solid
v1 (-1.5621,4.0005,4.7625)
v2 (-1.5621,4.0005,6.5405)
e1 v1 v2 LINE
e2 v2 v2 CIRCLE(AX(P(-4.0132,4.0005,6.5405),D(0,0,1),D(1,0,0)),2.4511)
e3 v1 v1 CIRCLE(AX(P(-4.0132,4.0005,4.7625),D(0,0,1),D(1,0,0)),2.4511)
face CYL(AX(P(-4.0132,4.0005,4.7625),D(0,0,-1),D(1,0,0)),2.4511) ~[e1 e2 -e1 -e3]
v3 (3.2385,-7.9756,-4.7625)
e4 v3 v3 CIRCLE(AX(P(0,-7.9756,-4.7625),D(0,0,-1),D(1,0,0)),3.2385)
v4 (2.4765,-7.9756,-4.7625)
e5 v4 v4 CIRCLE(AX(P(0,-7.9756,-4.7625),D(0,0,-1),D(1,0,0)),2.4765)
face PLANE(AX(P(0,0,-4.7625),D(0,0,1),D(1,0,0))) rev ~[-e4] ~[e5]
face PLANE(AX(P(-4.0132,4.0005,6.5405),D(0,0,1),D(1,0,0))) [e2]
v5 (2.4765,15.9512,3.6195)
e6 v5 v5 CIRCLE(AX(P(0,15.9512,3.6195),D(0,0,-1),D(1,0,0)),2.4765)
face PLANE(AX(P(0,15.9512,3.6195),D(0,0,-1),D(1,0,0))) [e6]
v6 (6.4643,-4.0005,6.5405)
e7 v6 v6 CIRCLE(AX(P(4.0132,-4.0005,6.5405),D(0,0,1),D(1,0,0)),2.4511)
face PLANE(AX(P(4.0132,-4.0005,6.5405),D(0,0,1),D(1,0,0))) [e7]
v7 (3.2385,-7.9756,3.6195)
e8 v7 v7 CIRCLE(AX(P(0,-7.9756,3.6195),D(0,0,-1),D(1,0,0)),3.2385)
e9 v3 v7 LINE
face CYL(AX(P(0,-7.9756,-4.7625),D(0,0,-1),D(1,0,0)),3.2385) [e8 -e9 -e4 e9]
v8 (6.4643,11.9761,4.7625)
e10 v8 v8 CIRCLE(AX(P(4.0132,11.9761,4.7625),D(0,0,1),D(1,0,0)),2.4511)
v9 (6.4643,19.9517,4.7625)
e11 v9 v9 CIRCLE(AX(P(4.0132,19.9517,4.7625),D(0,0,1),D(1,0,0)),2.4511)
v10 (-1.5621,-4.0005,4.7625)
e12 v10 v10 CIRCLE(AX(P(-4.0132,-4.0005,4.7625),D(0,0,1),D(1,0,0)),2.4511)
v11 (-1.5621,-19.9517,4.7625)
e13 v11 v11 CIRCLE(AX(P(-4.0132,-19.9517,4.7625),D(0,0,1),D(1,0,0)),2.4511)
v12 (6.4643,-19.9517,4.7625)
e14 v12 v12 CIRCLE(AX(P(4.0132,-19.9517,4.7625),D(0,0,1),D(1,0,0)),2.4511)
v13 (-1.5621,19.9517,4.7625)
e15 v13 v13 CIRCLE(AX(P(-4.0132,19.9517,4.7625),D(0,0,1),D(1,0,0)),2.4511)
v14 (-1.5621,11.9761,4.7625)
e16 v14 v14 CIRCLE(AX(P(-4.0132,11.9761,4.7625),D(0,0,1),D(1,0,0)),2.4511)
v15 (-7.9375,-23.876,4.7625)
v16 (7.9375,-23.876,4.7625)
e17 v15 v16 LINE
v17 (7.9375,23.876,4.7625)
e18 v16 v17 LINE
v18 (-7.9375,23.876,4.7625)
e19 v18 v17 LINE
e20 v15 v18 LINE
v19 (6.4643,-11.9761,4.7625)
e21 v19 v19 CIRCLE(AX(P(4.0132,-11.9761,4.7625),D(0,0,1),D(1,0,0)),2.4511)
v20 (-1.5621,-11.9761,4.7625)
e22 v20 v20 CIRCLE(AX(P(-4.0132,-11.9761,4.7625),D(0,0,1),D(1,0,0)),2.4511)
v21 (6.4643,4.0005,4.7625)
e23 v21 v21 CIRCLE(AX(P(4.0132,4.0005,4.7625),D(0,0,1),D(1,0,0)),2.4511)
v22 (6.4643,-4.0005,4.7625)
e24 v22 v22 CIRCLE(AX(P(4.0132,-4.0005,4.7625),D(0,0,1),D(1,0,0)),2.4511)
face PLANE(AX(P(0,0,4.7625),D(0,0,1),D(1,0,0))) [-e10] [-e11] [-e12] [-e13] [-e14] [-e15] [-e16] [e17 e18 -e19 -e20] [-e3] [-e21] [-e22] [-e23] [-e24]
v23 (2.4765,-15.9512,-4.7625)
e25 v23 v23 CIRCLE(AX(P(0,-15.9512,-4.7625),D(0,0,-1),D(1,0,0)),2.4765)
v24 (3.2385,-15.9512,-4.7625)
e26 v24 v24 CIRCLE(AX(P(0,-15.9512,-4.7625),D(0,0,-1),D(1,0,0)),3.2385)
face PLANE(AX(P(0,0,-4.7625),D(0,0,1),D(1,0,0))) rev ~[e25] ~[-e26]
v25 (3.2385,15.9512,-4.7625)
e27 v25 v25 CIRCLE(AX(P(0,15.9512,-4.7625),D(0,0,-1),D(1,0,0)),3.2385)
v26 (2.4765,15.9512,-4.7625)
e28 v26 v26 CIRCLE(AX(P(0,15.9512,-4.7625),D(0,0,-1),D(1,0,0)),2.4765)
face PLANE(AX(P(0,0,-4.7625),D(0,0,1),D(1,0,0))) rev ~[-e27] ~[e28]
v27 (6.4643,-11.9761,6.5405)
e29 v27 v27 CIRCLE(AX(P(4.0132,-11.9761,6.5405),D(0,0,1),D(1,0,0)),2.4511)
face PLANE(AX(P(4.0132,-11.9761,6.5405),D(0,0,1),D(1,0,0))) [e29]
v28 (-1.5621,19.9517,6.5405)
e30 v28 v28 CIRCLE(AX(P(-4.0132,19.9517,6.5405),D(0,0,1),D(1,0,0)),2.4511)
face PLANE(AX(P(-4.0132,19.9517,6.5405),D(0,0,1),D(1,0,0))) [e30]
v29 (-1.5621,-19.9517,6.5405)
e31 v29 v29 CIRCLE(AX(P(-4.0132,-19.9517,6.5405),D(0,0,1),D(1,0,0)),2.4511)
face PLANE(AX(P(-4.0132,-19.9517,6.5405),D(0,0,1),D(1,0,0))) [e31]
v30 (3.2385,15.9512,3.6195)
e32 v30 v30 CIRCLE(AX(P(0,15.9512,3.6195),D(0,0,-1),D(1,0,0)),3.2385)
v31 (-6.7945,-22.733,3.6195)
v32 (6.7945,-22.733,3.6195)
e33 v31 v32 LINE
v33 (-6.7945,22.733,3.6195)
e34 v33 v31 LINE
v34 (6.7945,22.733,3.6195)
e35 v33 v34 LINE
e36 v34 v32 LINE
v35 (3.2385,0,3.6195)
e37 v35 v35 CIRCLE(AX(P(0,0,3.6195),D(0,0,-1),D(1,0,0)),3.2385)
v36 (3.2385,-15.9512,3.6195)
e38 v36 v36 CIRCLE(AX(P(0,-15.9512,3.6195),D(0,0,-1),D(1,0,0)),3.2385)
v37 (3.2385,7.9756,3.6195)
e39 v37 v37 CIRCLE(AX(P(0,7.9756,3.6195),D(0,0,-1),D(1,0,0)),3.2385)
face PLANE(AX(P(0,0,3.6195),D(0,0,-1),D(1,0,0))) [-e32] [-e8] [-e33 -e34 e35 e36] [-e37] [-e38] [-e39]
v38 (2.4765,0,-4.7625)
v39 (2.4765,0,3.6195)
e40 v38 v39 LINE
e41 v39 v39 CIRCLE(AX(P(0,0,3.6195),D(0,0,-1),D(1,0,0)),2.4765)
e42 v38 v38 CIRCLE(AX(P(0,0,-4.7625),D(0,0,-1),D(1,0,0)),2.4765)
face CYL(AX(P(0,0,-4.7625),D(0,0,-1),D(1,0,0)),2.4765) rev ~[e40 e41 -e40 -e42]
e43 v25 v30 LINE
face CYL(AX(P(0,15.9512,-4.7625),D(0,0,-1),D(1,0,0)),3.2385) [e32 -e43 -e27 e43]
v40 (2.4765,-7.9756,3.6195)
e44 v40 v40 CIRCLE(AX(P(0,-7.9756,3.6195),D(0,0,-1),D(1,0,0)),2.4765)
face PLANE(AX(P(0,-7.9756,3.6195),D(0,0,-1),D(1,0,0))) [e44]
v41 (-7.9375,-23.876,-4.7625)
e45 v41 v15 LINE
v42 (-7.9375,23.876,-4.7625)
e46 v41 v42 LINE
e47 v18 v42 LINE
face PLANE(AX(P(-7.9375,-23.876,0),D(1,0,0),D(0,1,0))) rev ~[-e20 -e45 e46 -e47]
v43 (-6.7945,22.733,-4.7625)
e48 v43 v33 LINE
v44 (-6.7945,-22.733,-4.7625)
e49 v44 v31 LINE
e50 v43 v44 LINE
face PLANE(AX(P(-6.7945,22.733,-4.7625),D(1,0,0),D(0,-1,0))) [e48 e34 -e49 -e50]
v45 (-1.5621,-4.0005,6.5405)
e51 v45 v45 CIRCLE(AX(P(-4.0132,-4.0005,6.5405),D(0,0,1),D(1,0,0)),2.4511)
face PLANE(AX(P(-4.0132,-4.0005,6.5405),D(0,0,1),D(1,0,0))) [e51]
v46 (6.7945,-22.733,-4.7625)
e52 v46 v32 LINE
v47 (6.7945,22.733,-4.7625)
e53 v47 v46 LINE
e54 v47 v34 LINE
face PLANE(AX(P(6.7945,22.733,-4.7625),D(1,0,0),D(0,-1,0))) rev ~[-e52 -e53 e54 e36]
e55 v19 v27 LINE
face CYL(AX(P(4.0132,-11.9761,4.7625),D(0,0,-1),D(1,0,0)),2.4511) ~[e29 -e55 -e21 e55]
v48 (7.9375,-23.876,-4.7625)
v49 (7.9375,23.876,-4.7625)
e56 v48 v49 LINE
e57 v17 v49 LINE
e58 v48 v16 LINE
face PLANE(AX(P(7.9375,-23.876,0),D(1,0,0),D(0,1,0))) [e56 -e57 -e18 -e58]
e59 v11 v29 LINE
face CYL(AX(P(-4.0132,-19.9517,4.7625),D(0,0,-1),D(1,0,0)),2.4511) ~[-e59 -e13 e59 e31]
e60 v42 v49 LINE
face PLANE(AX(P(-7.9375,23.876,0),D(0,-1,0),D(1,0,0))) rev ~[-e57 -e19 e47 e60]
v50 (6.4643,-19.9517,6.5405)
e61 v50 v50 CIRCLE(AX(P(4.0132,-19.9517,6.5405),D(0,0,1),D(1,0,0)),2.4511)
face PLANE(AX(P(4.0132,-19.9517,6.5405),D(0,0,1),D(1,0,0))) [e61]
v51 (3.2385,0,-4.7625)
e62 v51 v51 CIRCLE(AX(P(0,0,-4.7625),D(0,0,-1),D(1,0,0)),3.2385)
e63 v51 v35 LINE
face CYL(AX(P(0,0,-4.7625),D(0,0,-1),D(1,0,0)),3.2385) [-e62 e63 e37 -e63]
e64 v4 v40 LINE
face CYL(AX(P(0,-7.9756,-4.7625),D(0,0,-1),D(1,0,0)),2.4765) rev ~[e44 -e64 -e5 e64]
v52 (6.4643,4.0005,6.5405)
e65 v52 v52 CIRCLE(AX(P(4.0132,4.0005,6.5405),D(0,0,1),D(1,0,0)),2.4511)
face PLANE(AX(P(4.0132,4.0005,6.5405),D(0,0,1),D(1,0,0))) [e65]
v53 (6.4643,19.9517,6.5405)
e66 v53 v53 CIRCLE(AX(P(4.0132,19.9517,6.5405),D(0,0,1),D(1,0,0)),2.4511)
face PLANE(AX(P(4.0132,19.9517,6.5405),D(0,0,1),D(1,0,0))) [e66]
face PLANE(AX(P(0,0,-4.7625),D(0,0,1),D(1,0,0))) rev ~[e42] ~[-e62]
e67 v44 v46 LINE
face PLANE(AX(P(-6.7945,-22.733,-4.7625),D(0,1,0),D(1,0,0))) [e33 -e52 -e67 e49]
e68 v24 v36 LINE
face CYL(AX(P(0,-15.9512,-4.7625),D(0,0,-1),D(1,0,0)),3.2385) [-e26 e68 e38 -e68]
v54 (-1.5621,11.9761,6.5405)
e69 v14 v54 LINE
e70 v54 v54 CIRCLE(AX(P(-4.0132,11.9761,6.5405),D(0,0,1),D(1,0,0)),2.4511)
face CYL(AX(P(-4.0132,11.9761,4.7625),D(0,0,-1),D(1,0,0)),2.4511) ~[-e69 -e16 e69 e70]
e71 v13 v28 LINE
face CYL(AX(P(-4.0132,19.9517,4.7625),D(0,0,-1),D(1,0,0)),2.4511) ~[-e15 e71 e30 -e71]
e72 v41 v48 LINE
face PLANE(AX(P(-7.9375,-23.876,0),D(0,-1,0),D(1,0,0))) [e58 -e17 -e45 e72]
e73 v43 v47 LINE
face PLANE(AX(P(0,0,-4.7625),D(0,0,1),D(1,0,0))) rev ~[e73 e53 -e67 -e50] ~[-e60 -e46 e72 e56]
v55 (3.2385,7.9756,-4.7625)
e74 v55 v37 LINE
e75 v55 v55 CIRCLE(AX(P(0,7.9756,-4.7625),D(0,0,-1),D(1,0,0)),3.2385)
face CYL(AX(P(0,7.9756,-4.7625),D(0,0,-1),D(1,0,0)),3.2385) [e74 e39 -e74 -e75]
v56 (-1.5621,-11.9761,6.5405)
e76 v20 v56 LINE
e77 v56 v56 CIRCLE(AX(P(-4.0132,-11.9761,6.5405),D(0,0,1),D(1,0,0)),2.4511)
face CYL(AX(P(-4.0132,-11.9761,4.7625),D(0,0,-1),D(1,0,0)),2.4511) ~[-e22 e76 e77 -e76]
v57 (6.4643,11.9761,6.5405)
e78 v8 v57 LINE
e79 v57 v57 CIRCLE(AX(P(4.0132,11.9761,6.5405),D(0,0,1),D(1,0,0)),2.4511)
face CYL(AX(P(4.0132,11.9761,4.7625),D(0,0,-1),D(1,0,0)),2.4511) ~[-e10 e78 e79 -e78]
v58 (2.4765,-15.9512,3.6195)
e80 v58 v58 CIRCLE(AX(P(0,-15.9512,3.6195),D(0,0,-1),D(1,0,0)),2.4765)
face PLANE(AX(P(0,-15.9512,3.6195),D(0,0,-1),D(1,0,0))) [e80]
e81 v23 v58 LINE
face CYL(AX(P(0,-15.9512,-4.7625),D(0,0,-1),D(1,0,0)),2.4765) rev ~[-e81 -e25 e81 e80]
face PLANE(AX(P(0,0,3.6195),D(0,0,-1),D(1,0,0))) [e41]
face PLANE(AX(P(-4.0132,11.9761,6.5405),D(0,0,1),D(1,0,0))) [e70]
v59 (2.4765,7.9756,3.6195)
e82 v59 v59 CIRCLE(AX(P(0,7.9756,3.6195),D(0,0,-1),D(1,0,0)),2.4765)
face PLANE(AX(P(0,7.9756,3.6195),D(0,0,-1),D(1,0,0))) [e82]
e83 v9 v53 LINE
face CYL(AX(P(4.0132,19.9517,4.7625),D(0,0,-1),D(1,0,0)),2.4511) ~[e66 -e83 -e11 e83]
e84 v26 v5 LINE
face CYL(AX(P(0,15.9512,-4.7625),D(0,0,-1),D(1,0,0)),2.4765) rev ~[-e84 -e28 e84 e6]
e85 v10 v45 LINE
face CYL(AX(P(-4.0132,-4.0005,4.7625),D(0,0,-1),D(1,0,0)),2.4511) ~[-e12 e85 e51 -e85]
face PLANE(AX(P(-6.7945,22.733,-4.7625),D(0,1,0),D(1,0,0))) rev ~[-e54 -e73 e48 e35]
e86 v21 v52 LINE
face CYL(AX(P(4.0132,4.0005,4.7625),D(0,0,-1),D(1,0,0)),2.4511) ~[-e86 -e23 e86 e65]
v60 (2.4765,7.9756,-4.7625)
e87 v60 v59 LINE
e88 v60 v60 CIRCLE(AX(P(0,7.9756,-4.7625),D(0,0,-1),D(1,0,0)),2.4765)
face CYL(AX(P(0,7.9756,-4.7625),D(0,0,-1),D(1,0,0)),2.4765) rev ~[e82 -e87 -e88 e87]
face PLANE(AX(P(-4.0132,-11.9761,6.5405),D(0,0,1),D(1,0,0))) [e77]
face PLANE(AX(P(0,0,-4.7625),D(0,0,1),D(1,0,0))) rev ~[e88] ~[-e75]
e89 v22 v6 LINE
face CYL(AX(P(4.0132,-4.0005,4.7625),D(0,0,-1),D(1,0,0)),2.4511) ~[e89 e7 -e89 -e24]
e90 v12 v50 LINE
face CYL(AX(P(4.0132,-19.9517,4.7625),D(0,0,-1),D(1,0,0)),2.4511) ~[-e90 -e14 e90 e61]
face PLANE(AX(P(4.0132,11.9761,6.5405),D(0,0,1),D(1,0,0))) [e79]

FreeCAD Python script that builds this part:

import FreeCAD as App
import Part
import Sketcher
Q = App.Units.Quantity

doc = App.newDocument("Part")
body = doc.addObject("PartDesign::Body", "Body")

# Sketch on XY plane
sketch1 = body.newObject("Sketcher::SketchObject", "Sketch")
sketch1.AttachmentSupport = (doc.getObject("XY_Plane"), [""])
sketch1.MapMode = "FlatFace"
sketch1.addGeometry(Part.LineSegment(App.Vector(-7.9375, 23.876, 0), App.Vector(-7.9375, -23.876, 0)), False)
sketch1.addGeometry(Part.LineSegment(App.Vector(-7.9375, -23.876, 0), App.Vector(7.9375, -23.876, 0)), False)
sketch1.addGeometry(Part.LineSegment(App.Vector(7.9375, -23.876, 0), App.Vector(7.9375, 23.876, 0)), False)
sketch1.addGeometry(Part.LineSegment(App.Vector(7.9375, 23.876, 0), App.Vector(-7.9375, 23.876, 0)), False)
sketch1.addConstraint(Sketcher.Constraint("Coincident", 0, 2, 1, 1))
sketch1.addConstraint(Sketcher.Constraint("Coincident", 1, 2, 2, 1))
sketch1.addConstraint(Sketcher.Constraint("Coincident", 2, 2, 3, 1))
sketch1.addConstraint(Sketcher.Constraint("Coincident", 3, 2, 0, 1))
sketch1.addConstraint(Sketcher.Constraint("Vertical", 0))
sketch1.addConstraint(Sketcher.Constraint("Horizontal", 1))
sketch1.addConstraint(Sketcher.Constraint("Vertical", 2))
sketch1.addConstraint(Sketcher.Constraint("Horizontal", 3))
sketch1.addConstraint(Sketcher.Constraint("Symmetric", 0, 2, 2, 2, -1, 1))
sketch1.addConstraint(Sketcher.Constraint("DistanceY", 0, 2, 0, 1, Q("1.88 in")))
sketch1.addConstraint(Sketcher.Constraint("DistanceX", 1, 1, 1, 2, Q("0.625 in")))
pad1 = body.newObject("PartDesign::Pad", "Pad")
pad1.Profile = sketch1
pad1.Length = Q("0.375 in")
pad1.Midplane = True

# Sketch on XY plane
sketch2 = body.newObject("Sketcher::SketchObject", "Sketch001")
sketch2.AttachmentSupport = (doc.getObject("XY_Plane"), [""])
sketch2.MapMode = "FlatFace"
sketch2.AttachmentOffset = App.Placement(App.Vector(0, 0, 0.1875 * 25.4), App.Rotation())
sketch2.addGeometry(Part.Circle(App.Vector(-4.0132, 19.9517, 0), App.Vector(0, 0, 1), 2.4511), False)
sketch2.addGeometry(Part.Circle(App.Vector(4.0132, 19.9517, 0), App.Vector(0, 0, 1), 2.4511), False)
sketch2.addGeometry(Part.Circle(App.Vector(-4.0132, 11.9761, 0), App.Vector(0, 0, 1), 2.4511), False)
sketch2.addGeometry(Part.Circle(App.Vector(4.0132, 11.9761, 0), App.Vector(0, 0, 1), 2.4511), False)
sketch2.addGeometry(Part.Circle(App.Vector(4.0132, 4.0005, 0), App.Vector(0, 0, 1), 2.4511), False)
sketch2.addGeometry(Part.Circle(App.Vector(-4.0132, 4.0005, 0), App.Vector(0, 0, 1), 2.4511), False)
sketch2.addGeometry(Part.Circle(App.Vector(-4.0132, -4.0005, 0), App.Vector(0, 0, 1), 2.4511), False)
sketch2.addGeometry(Part.Circle(App.Vector(4.0132, -4.0005, 0), App.Vector(0, 0, 1), 2.4511), False)
sketch2.addGeometry(Part.Circle(App.Vector(4.0132, -11.9761, 0), App.Vector(0, 0, 1), 2.4511), False)
sketch2.addGeometry(Part.Circle(App.Vector(-4.0132, -11.9761, 0), App.Vector(0, 0, 1), 2.4511), False)
sketch2.addGeometry(Part.Circle(App.Vector(-4.0132, -19.9517, 0), App.Vector(0, 0, 1), 2.4511), False)
sketch2.addGeometry(Part.Circle(App.Vector(4.0132, -19.9517, 0), App.Vector(0, 0, 1), 2.4511), False)
sketch2.addConstraint(Sketcher.Constraint("Equal", 0, 1))
sketch2.addConstraint(Sketcher.Constraint("Equal", 1, 2))
sketch2.addConstraint(Sketcher.Constraint("Equal", 2, 3))
sketch2.addConstraint(Sketcher.Constraint("Equal", 3, 4))
sketch2.addConstraint(Sketcher.Constraint("Equal", 4, 5))
sketch2.addConstraint(Sketcher.Constraint("Equal", 5, 6))
sketch2.addConstraint(Sketcher.Constraint("Equal", 6, 7))
sketch2.addConstraint(Sketcher.Constraint("Equal", 7, 8))
sketch2.addConstraint(Sketcher.Constraint("Equal", 8, 9))
sketch2.addConstraint(Sketcher.Constraint("Equal", 9, 10))
sketch2.addConstraint(Sketcher.Constraint("Equal", 10, 11))
sketch2.addConstraint(Sketcher.Constraint("Symmetric", 4, 3, 6, 3, -1, 1))
sketch2.addConstraint(Sketcher.Constraint("Symmetric", 5, 3, 7, 3, -1, 1))
sketch2.addConstraint(Sketcher.Constraint("Symmetric", 2, 3, 8, 3, -1, 1))
sketch2.addConstraint(Sketcher.Constraint("Symmetric", 3, 3, 9, 3, -1, 1))
sketch2.addConstraint(Sketcher.Constraint("Symmetric", 1, 3, 10, 3, -1, 1))
sketch2.addConstraint(Sketcher.Constraint("Symmetric", 0, 3, 11, 3, -1, 1))
sketch2.addConstraint(Sketcher.Constraint("Symmetric", 0, 3, 1, 3, -2))
sketch2.addConstraint(Sketcher.Constraint("Symmetric", 2, 3, 3, 3, -2))
sketch2.addConstraint(Sketcher.Constraint("Symmetric", 4, 3, 5, 3, -2))
sketch2.addConstraint(Sketcher.Constraint("Vertical", 0, 3, 2, 3))
sketch2.addConstraint(Sketcher.Constraint("Vertical", 3, 3, 4, 3))
sketch2.addConstraint(Sketcher.Constraint("Diameter", 0, Q("0.193 in")))
sketch2.addConstraint(Sketcher.Constraint("DistanceX", 0, 3, -1, 1, Q("0.158 in")))
sketch2.addConstraint(Sketcher.Constraint("DistanceY", 2, 3, 0, 3, Q("0.314 in")))
sketch2.addConstraint(Sketcher.Constraint("DistanceY", 4, 3, 3, 3, Q("0.314 in")))
sketch2.addConstraint(Sketcher.Constraint("DistanceY", 6, 3, 5, 3, Q("0.315 in")))
pad2 = body.newObject("PartDesign::Pad", "Pad001")
pad2.Profile = sketch2
pad2.Length = Q("0.07 in")

# Sketch on XY plane
sketch3 = body.newObject("Sketcher::SketchObject", "Sketch002")
sketch3.AttachmentSupport = (doc.getObject("XY_Plane"), [""])
sketch3.MapMode = "FlatFace"
sketch3.AttachmentOffset = App.Placement(App.Vector(0, 0, -0.1875 * 25.4), App.Rotation())
sketch3.addGeometry(Part.LineSegment(App.Vector(-6.7945, -22.733, 0), App.Vector(-6.7945, 22.733, 0)), False)
sketch3.addGeometry(Part.LineSegment(App.Vector(-6.7945, 22.733, 0), App.Vector(6.7945, 22.733, 0)), False)
sketch3.addGeometry(Part.LineSegment(App.Vector(6.7945, 22.733, 0), App.Vector(6.7945, -22.733, 0)), False)
sketch3.addGeometry(Part.LineSegment(App.Vector(6.7945, -22.733, 0), App.Vector(-6.7945, -22.733, 0)), False)
sketch3.addGeometry(Part.Circle(App.Vector(0, 15.9512, 0), App.Vector(0, 0, 1), 3.2385), False)
sketch3.addGeometry(Part.Circle(App.Vector(0, 7.9756, 0), App.Vector(0, 0, 1), 3.2385), False)
sketch3.addGeometry(Part.Circle(App.Vector(0, 0, 0), App.Vector(0, 0, 1), 3.2385), False)
sketch3.addGeometry(Part.Circle(App.Vector(0, -7.9756, 0), App.Vector(0, 0, 1), 3.2385), False)
sketch3.addGeometry(Part.Circle(App.Vector(0, -15.9512, 0), App.Vector(0, 0, 1), 3.2385), False)
sketch3.addConstraint(Sketcher.Constraint("Coincident", 0, 2, 1, 1))
sketch3.addConstraint(Sketcher.Constraint("Coincident", 1, 2, 2, 1))
sketch3.addConstraint(Sketcher.Constraint("Coincident", 2, 2, 3, 1))
sketch3.addConstraint(Sketcher.Constraint("Coincident", 3, 2, 0, 1))
sketch3.addConstraint(Sketcher.Constraint("Vertical", 0))
sketch3.addConstraint(Sketcher.Constraint("Horizontal", 1))
sketch3.addConstraint(Sketcher.Constraint("Vertical", 2))
sketch3.addConstraint(Sketcher.Constraint("Horizontal", 3))
sketch3.addConstraint(Sketcher.Constraint("Coincident", 6, 3, -1, 1))
sketch3.addConstraint(Sketcher.Constraint("Equal", 4, 5))
sketch3.addConstraint(Sketcher.Constraint("Equal", 5, 6))
sketch3.addConstraint(Sketcher.Constraint("Equal", 6, 7))
sketch3.addConstraint(Sketcher.Constraint("Equal", 7, 8))
sketch3.addConstraint(Sketcher.Constraint("Symmetric", 5, 3, 7, 3, -1, 1))
sketch3.addConstraint(Sketcher.Constraint("Symmetric", 4, 3, 8, 3, -1, 1))
sketch3.addConstraint(Sketcher.Constraint("Symmetric", 0, 2, 2, 2, -1, 1))
sketch3.addConstraint(Sketcher.Constraint("PointOnObject", 4, 3, -2))
sketch3.addConstraint(Sketcher.Constraint("PointOnObject", 5, 3, -2))
sketch3.addConstraint(Sketcher.Constraint("Diameter", 4, Q("0.255 in")))
sketch3.addConstraint(Sketcher.Constraint("DistanceY", 0, 1, 0, 2, Q("1.79 in")))
sketch3.addConstraint(Sketcher.Constraint("DistanceX", 1, 1, 1, 2, Q("0.535 in")))
sketch3.addConstraint(Sketcher.Constraint("DistanceY", -1, 1, 4, 3, Q("0.628 in")))
sketch3.addConstraint(Sketcher.Constraint("DistanceY", -1, 1, 5, 3, Q("0.314 in")))
pocket1 = body.newObject("PartDesign::Pocket", "Pocket")
pocket1.Profile = sketch3
pocket1.Length = Q("0.33 in")
pocket1.Reversed = True

# Sketch on XY plane
sketch4 = body.newObject("Sketcher::SketchObject", "Sketch003")
sketch4.AttachmentSupport = (doc.getObject("XY_Plane"), [""])
sketch4.MapMode = "FlatFace"
sketch4.AttachmentOffset = App.Placement(App.Vector(0, 0, -0.1875 * 25.4), App.Rotation())
sketch4.addGeometry(Part.Circle(App.Vector(0, -15.9512, 0), App.Vector(0, 0, 1), 2.4765), False)
sketch4.addGeometry(Part.Circle(App.Vector(0, -7.9756, 0), App.Vector(0, 0, 1), 2.4765), False)
sketch4.addGeometry(Part.Circle(App.Vector(0, 0, 0), App.Vector(0, 0, 1), 2.4765), False)
sketch4.addGeometry(Part.Circle(App.Vector(0, 7.9756, 0), App.Vector(0, 0, 1), 2.4765), False)
sketch4.addGeometry(Part.Circle(App.Vector(0, 15.9512, 0), App.Vector(0, 0, 1), 2.4765), False)
sketch4.addConstraint(Sketcher.Constraint("Coincident", 2, 3, -1, 1))
sketch4.addConstraint(Sketcher.Constraint("Equal", 0, 1))
sketch4.addConstraint(Sketcher.Constraint("Equal", 1, 2))
sketch4.addConstraint(Sketcher.Constraint("Equal", 2, 3))
sketch4.addConstraint(Sketcher.Constraint("Equal", 3, 4))
sketch4.addConstraint(Sketcher.Constraint("Symmetric", 1, 3, 3, 3, -1, 1))
sketch4.addConstraint(Sketcher.Constraint("Symmetric", 0, 3, 4, 3, -1, 1))
sketch4.addConstraint(Sketcher.Constraint("PointOnObject", 0, 3, -2))
sketch4.addConstraint(Sketcher.Constraint("PointOnObject", 1, 3, -2))
sketch4.addConstraint(Sketcher.Constraint("Diameter", 0, Q("0.195 in")))
sketch4.addConstraint(Sketcher.Constraint("DistanceY", 0, 3, -1, 1, Q("0.628 in")))
sketch4.addConstraint(Sketcher.Constraint("DistanceY", 1, 3, -1, 1, Q("0.314 in")))
pocket2 = body.newObject("PartDesign::Pocket", "Pocket001")
pocket2.Profile = sketch4
pocket2.Length = Q("0.33 in")
pocket2.Reversed = True

doc.recompute()
